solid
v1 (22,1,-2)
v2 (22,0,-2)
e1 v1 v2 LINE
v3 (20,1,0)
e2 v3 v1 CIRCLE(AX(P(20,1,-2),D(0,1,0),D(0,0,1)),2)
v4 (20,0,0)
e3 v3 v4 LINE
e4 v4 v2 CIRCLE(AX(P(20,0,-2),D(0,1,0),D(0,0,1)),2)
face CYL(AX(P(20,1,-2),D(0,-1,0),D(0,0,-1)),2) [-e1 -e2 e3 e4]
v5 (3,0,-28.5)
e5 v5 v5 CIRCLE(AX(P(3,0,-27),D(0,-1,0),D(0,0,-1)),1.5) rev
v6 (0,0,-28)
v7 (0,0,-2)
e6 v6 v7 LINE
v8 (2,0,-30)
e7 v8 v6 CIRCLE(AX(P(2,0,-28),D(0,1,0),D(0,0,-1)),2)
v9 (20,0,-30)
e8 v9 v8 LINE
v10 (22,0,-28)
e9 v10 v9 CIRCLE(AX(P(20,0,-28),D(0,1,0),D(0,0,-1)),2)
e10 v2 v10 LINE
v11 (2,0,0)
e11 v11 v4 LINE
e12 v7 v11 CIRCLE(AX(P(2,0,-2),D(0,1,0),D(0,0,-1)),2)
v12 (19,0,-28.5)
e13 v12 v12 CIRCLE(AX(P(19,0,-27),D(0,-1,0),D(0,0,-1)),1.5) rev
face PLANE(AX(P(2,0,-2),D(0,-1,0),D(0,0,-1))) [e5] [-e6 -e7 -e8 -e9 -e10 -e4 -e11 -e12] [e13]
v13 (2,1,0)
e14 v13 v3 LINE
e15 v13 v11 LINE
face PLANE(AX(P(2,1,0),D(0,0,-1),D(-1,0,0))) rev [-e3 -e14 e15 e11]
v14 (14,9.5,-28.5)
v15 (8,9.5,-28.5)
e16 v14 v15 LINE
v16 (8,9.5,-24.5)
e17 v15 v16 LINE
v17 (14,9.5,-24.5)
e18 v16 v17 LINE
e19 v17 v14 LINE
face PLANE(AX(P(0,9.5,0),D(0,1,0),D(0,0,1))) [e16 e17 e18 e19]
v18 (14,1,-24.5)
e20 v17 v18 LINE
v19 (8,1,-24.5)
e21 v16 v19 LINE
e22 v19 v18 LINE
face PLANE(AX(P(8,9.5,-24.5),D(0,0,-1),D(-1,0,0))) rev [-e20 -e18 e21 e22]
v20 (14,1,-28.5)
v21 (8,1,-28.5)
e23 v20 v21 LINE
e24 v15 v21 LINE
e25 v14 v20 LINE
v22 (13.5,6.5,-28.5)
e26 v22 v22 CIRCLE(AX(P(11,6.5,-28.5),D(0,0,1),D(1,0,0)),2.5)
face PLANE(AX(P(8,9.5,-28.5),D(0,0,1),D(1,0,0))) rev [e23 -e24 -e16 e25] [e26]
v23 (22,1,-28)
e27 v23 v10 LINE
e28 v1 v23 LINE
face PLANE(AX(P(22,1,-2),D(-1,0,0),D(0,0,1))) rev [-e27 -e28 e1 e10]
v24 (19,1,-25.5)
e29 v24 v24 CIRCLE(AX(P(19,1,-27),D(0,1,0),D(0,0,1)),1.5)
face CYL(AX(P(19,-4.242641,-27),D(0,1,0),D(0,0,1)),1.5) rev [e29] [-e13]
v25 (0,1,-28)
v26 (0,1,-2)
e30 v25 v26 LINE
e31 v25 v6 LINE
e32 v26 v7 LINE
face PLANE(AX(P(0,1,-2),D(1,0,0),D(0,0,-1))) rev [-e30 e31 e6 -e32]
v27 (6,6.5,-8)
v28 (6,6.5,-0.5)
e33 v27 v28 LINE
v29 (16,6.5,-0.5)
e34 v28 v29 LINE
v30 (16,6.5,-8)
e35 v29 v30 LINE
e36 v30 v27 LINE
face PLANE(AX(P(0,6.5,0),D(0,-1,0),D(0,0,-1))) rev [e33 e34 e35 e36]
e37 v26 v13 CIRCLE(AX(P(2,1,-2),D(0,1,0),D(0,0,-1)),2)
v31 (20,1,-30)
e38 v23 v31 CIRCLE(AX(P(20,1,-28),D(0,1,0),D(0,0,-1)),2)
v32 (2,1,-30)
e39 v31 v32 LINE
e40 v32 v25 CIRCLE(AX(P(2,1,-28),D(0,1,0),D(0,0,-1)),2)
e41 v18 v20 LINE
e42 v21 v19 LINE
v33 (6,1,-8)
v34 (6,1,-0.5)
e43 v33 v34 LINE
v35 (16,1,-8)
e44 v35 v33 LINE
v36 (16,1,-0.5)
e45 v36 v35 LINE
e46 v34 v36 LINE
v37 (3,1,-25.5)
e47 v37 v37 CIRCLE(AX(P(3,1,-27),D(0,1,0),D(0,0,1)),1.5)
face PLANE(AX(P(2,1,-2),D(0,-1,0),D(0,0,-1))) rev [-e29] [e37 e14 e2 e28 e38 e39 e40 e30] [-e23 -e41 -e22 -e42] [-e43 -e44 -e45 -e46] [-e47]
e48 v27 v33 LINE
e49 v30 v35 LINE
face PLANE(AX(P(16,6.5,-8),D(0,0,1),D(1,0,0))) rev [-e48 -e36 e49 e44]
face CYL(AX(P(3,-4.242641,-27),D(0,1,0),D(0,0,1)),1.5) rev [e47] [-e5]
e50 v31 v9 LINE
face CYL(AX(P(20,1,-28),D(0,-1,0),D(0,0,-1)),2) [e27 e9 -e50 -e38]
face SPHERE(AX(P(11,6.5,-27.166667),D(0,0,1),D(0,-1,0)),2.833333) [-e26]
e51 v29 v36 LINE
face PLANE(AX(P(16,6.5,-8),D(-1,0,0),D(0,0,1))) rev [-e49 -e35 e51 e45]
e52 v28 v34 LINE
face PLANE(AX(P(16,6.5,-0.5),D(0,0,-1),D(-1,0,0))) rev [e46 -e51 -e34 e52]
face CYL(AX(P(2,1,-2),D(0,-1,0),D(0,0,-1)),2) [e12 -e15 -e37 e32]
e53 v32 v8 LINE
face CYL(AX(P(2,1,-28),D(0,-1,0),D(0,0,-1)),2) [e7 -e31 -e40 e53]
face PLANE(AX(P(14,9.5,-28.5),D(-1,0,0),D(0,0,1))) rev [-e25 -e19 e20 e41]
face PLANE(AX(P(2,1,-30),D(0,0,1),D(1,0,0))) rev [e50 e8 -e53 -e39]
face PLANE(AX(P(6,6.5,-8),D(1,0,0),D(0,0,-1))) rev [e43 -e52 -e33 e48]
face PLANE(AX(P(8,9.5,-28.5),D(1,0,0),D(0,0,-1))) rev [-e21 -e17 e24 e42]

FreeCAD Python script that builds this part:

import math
import FreeCAD as App
import Part
import Sketcher
from FreeCAD import Vector
Q = App.Units.Quantity

doc = App.newDocument("Part")
body = doc.addObject("PartDesign::Body", "Body")

sketch1 = doc.addObject("Sketcher::SketchObject", "Sketch")
body.addObject(sketch1)
sketch1.AttachmentSupport = (doc.XZ_Plane, [""])
sketch1.MapMode = "FlatFace"
sketch1.addGeometry([
    Part.LineSegment(Vector(2, 0, 0), Vector(20, 0, 0)),
    Part.ArcOfCircle(Part.Circle(Vector(20, -2, 0), Vector(0, 0, 1), 2), math.radians(0), math.radians(90)),
    Part.LineSegment(Vector(22, -2, 0), Vector(22, -28, 0)),
    Part.ArcOfCircle(Part.Circle(Vector(20, -28, 0), Vector(0, 0, 1), 2), math.radians(-90), math.radians(0)),
    Part.LineSegment(Vector(20, -30, 0), Vector(2, -30, 0)),
    Part.ArcOfCircle(Part.Circle(Vector(2, -28, 0), Vector(0, 0, 1), 2), math.radians(-180), math.radians(-90)),
    Part.LineSegment(Vector(0, -28, 0), Vector(0, -2, 0)),
    Part.ArcOfCircle(Part.Circle(Vector(2, -2, 0), Vector(0, 0, 1), 2), math.radians(90), math.radians(180)),
], False)
sketch1.addConstraint([
    Sketcher.Constraint("Tangent", 0, 2, 1, 2),
    Sketcher.Constraint("Tangent", 1, 1, 2, 1),
    Sketcher.Constraint("Tangent", 2, 2, 3, 2),
    Sketcher.Constraint("Tangent", 3, 1, 4, 1),
    Sketcher.Constraint("Tangent", 4, 2, 5, 2),
    Sketcher.Constraint("Tangent", 5, 1, 6, 1),
    Sketcher.Constraint("Tangent", 6, 2, 7, 2),
    Sketcher.Constraint("Tangent", 7, 1, 0, 1),
    Sketcher.Constraint("Horizontal", 0),
    Sketcher.Constraint("Vertical", 2),
    Sketcher.Constraint("Horizontal", 4),
    Sketcher.Constraint("Vertical", 6),
    Sketcher.Constraint("Equal", 1, 3),
    Sketcher.Constraint("Equal", 3, 5),
    Sketcher.Constraint("Equal", 5, 7),
    Sketcher.Constraint("PointOnObject", 0, 2, -1),
    Sketcher.Constraint("PointOnObject", 5, 1, -2),
    Sketcher.Constraint("Radius", 1, Q("2 mm")),
    Sketcher.Constraint("DistanceX", 0, 1, 0, 2, Q("18 mm")),
    Sketcher.Constraint("DistanceY", 2, 2, 2, 1, Q("26 mm")),
])
pad1 = doc.addObject("PartDesign::Pad", "Pad")
body.addObject(pad1)
pad1.Profile = sketch1
pad1.Length = 1
pad1.Reversed = True

sketch2 = doc.addObject("Sketcher::SketchObject", "Sketch001")
body.addObject(sketch2)
sketch2.AttachmentSupport = (doc.XZ_Plane, [""])
sketch2.MapMode = "FlatFace"
sketch2.AttachmentOffset = App.Placement(Vector(0, 0, -1), App.Rotation())
sketch2.addGeometry([
    Part.Circle(Vector(3, -27, 0), Vector(0, 0, 1), 1.5),
    Part.Circle(Vector(19, -27, 0), Vector(0, 0, 1), 1.5),
], False)
sketch2.addConstraint([
    Sketcher.Constraint("Equal", 0, 1),
    Sketcher.Constraint("Horizontal", 0, 3, 1, 3),
    Sketcher.Constraint("Diameter", 0, Q("3 mm")),
    Sketcher.Constraint("DistanceX", -1, 1, 0, 3, Q("3 mm")),
    Sketcher.Constraint("DistanceY", 0, 3, -1, 1, Q("27 mm")),
    Sketcher.Constraint("DistanceX", -1, 1, 1, 3, Q("19 mm")),
])
pocket1 = doc.addObject("PartDesign::Pocket", "Pocket")
body.addObject(pocket1)
pocket1.Profile = sketch2
pocket1.Length = 1
pocket1.Reversed = True

sketch3 = doc.addObject("Sketcher::SketchObject", "Sketch002")
body.addObject(sketch3)
sketch3.AttachmentSupport = (doc.XZ_Plane, [""])
sketch3.MapMode = "FlatFace"
sketch3.AttachmentOffset = App.Placement(Vector(0, 0, -1), App.Rotation())
sketch3.addGeometry([
    Part.LineSegment(Vector(8, -28.5, 0), Vector(8, -24.5, 0)),
    Part.LineSegment(Vector(8, -24.5, 0), Vector(14, -24.5, 0)),
    Part.LineSegment(Vector(14, -24.5, 0), Vector(14, -28.5, 0)),
    Part.LineSegment(Vector(14, -28.5, 0), Vector(8, -28.5, 0)),
], False)
sketch3.addConstraint([
    Sketcher.Constraint("Coincident", 0, 2, 1, 1),
    Sketcher.Constraint("Coincident", 1, 2, 2, 1),
    Sketcher.Constraint("Coincident", 2, 2, 3, 1),
    Sketcher.Constraint("Coincident", 3, 2, 0, 1),
    Sketcher.Constraint("Vertical", 0),
    Sketcher.Constraint("Horizontal", 1),
    Sketcher.Constraint("Vertical", 2),
    Sketcher.Constraint("Horizontal", 3),
    Sketcher.Constraint("DistanceX", 1, 1, 1, 2, Q("6 mm")),
    Sketcher.Constraint("DistanceY", 0, 1, 0, 2, Q("4 mm")),
    Sketcher.Constraint("DistanceX", -1, 1, 0, 2, Q("8 mm")),
    Sketcher.Constraint("DistanceY", 0, 2, -1, 1, Q("24.5 mm")),
])
pad2 = doc.addObject("PartDesign::Pad", "Pad001")
body.addObject(pad2)
pad2.Profile = sketch3
pad2.Length = 8.5
pad2.Reversed = True

sketch4 = doc.addObject("Sketcher::SketchObject", "Sketch003")
body.addObject(sketch4)
sketch4.AttachmentSupport = (doc.YZ_Plane, [""])
sketch4.MapMode = "FlatFace"
sketch4.AttachmentOffset = App.Placement(Vector(0, 0, 11), App.Rotation())
sketch4.addGeometry([
    Part.LineSegment(Vector(6.5, -30, 0), Vector(6.5, -28.5, 0)),
    Part.LineSegment(Vector(6.5, -28.5, 0), Vector(4, -28.5, 0)),
    Part.ArcOfCircle(Part.Circle(Vector(6.5, -27.2, 0), Vector(0, 0, 1), 2.8), math.radians(-152), math.radians(-90)),
], False)
sketch4.addGeometry(Part.LineSegment(Vector(6.5, -27.2, 0), Vector(6.5, -30, 0)), True)
sketch4.addConstraint([
    Sketcher.Constraint("Coincident", 0, 2, 1, 1),
    Sketcher.Constraint("Coincident", 1, 2, 2, 1),
    Sketcher.Constraint("Coincident", 2, 2, 0, 1),
    Sketcher.Constraint("Vertical", 0),
    Sketcher.Constraint("Horizontal", 1),
    Sketcher.Constraint("Vertical", 3),
    Sketcher.Constraint("Coincident", 3, 1, 2, 3),
    Sketcher.Constraint("Coincident", 3, 2, 2, 2),
    Sketcher.Constraint("DistanceX", 1, 2, 1, 1, Q("2.5 mm")),
    Sketcher.Constraint("DistanceY", 0, 1, 0, 2, Q("1.5 mm")),
    Sketcher.Constraint("DistanceX", -1, 1, 1, 2, Q("4 mm")),
    Sketcher.Constraint("DistanceY", 2, 2, -1, 1, Q("30 mm")),
])
revolution = doc.addObject("PartDesign::Revolution", "Revolution")
body.addObject(revolution)
revolution.Profile = sketch4
revolution.ReferenceAxis = (sketch4, ["Axis0"])
revolution.Angle = 360

sketch5 = doc.addObject("Sketcher::SketchObject", "Sketch004")
body.addObject(sketch5)
sketch5.AttachmentSupport = (doc.XZ_Plane, [""])
sketch5.MapMode = "FlatFace"
sketch5.AttachmentOffset = App.Placement(Vector(0, 0, -1), App.Rotation())
sketch5.addGeometry([
    Part.LineSegment(Vector(6, -8, 0), Vector(6, 0, 0)),
    Part.LineSegment(Vector(6, 0, 0), Vector(16, 0, 0)),
    Part.LineSegment(Vector(16, 0, 0), Vector(16, -8, 0)),
    Part.LineSegment(Vector(16, -8, 0), Vector(6, -8, 0)),
], False)
sketch5.addConstraint([
    Sketcher.Constraint("Coincident", 0, 2, 1, 1),
    Sketcher.Constraint("Coincident", 1, 2, 2, 1),
    Sketcher.Constraint("Coincident", 2, 2, 3, 1),
    Sketcher.Constraint("Coincident", 3, 2, 0, 1),
    Sketcher.Constraint("Vertical", 0),
    Sketcher.Constraint("Horizontal", 1),
    Sketcher.Constraint("Vertical", 2),
    Sketcher.Constraint("Horizontal", 3),
    Sketcher.Constraint("DistanceX", 1, 1, 1, 2, Q("10 mm")),
    Sketcher.Constraint("DistanceY", 0, 1, 0, 2, Q("7.5 mm")),
    Sketcher.Constraint("DistanceX", -1, 1, 0, 2, Q("6 mm")),
    Sketcher.Constraint("DistanceY", 2, 2, -1, 1, Q("8 mm")),
])
pad3 = doc.addObject("PartDesign::Pad", "Pad002")
body.addObject(pad3)
pad3.Profile = sketch5
pad3.Length = 5.5
pad3.Reversed = True

doc.recompute()
